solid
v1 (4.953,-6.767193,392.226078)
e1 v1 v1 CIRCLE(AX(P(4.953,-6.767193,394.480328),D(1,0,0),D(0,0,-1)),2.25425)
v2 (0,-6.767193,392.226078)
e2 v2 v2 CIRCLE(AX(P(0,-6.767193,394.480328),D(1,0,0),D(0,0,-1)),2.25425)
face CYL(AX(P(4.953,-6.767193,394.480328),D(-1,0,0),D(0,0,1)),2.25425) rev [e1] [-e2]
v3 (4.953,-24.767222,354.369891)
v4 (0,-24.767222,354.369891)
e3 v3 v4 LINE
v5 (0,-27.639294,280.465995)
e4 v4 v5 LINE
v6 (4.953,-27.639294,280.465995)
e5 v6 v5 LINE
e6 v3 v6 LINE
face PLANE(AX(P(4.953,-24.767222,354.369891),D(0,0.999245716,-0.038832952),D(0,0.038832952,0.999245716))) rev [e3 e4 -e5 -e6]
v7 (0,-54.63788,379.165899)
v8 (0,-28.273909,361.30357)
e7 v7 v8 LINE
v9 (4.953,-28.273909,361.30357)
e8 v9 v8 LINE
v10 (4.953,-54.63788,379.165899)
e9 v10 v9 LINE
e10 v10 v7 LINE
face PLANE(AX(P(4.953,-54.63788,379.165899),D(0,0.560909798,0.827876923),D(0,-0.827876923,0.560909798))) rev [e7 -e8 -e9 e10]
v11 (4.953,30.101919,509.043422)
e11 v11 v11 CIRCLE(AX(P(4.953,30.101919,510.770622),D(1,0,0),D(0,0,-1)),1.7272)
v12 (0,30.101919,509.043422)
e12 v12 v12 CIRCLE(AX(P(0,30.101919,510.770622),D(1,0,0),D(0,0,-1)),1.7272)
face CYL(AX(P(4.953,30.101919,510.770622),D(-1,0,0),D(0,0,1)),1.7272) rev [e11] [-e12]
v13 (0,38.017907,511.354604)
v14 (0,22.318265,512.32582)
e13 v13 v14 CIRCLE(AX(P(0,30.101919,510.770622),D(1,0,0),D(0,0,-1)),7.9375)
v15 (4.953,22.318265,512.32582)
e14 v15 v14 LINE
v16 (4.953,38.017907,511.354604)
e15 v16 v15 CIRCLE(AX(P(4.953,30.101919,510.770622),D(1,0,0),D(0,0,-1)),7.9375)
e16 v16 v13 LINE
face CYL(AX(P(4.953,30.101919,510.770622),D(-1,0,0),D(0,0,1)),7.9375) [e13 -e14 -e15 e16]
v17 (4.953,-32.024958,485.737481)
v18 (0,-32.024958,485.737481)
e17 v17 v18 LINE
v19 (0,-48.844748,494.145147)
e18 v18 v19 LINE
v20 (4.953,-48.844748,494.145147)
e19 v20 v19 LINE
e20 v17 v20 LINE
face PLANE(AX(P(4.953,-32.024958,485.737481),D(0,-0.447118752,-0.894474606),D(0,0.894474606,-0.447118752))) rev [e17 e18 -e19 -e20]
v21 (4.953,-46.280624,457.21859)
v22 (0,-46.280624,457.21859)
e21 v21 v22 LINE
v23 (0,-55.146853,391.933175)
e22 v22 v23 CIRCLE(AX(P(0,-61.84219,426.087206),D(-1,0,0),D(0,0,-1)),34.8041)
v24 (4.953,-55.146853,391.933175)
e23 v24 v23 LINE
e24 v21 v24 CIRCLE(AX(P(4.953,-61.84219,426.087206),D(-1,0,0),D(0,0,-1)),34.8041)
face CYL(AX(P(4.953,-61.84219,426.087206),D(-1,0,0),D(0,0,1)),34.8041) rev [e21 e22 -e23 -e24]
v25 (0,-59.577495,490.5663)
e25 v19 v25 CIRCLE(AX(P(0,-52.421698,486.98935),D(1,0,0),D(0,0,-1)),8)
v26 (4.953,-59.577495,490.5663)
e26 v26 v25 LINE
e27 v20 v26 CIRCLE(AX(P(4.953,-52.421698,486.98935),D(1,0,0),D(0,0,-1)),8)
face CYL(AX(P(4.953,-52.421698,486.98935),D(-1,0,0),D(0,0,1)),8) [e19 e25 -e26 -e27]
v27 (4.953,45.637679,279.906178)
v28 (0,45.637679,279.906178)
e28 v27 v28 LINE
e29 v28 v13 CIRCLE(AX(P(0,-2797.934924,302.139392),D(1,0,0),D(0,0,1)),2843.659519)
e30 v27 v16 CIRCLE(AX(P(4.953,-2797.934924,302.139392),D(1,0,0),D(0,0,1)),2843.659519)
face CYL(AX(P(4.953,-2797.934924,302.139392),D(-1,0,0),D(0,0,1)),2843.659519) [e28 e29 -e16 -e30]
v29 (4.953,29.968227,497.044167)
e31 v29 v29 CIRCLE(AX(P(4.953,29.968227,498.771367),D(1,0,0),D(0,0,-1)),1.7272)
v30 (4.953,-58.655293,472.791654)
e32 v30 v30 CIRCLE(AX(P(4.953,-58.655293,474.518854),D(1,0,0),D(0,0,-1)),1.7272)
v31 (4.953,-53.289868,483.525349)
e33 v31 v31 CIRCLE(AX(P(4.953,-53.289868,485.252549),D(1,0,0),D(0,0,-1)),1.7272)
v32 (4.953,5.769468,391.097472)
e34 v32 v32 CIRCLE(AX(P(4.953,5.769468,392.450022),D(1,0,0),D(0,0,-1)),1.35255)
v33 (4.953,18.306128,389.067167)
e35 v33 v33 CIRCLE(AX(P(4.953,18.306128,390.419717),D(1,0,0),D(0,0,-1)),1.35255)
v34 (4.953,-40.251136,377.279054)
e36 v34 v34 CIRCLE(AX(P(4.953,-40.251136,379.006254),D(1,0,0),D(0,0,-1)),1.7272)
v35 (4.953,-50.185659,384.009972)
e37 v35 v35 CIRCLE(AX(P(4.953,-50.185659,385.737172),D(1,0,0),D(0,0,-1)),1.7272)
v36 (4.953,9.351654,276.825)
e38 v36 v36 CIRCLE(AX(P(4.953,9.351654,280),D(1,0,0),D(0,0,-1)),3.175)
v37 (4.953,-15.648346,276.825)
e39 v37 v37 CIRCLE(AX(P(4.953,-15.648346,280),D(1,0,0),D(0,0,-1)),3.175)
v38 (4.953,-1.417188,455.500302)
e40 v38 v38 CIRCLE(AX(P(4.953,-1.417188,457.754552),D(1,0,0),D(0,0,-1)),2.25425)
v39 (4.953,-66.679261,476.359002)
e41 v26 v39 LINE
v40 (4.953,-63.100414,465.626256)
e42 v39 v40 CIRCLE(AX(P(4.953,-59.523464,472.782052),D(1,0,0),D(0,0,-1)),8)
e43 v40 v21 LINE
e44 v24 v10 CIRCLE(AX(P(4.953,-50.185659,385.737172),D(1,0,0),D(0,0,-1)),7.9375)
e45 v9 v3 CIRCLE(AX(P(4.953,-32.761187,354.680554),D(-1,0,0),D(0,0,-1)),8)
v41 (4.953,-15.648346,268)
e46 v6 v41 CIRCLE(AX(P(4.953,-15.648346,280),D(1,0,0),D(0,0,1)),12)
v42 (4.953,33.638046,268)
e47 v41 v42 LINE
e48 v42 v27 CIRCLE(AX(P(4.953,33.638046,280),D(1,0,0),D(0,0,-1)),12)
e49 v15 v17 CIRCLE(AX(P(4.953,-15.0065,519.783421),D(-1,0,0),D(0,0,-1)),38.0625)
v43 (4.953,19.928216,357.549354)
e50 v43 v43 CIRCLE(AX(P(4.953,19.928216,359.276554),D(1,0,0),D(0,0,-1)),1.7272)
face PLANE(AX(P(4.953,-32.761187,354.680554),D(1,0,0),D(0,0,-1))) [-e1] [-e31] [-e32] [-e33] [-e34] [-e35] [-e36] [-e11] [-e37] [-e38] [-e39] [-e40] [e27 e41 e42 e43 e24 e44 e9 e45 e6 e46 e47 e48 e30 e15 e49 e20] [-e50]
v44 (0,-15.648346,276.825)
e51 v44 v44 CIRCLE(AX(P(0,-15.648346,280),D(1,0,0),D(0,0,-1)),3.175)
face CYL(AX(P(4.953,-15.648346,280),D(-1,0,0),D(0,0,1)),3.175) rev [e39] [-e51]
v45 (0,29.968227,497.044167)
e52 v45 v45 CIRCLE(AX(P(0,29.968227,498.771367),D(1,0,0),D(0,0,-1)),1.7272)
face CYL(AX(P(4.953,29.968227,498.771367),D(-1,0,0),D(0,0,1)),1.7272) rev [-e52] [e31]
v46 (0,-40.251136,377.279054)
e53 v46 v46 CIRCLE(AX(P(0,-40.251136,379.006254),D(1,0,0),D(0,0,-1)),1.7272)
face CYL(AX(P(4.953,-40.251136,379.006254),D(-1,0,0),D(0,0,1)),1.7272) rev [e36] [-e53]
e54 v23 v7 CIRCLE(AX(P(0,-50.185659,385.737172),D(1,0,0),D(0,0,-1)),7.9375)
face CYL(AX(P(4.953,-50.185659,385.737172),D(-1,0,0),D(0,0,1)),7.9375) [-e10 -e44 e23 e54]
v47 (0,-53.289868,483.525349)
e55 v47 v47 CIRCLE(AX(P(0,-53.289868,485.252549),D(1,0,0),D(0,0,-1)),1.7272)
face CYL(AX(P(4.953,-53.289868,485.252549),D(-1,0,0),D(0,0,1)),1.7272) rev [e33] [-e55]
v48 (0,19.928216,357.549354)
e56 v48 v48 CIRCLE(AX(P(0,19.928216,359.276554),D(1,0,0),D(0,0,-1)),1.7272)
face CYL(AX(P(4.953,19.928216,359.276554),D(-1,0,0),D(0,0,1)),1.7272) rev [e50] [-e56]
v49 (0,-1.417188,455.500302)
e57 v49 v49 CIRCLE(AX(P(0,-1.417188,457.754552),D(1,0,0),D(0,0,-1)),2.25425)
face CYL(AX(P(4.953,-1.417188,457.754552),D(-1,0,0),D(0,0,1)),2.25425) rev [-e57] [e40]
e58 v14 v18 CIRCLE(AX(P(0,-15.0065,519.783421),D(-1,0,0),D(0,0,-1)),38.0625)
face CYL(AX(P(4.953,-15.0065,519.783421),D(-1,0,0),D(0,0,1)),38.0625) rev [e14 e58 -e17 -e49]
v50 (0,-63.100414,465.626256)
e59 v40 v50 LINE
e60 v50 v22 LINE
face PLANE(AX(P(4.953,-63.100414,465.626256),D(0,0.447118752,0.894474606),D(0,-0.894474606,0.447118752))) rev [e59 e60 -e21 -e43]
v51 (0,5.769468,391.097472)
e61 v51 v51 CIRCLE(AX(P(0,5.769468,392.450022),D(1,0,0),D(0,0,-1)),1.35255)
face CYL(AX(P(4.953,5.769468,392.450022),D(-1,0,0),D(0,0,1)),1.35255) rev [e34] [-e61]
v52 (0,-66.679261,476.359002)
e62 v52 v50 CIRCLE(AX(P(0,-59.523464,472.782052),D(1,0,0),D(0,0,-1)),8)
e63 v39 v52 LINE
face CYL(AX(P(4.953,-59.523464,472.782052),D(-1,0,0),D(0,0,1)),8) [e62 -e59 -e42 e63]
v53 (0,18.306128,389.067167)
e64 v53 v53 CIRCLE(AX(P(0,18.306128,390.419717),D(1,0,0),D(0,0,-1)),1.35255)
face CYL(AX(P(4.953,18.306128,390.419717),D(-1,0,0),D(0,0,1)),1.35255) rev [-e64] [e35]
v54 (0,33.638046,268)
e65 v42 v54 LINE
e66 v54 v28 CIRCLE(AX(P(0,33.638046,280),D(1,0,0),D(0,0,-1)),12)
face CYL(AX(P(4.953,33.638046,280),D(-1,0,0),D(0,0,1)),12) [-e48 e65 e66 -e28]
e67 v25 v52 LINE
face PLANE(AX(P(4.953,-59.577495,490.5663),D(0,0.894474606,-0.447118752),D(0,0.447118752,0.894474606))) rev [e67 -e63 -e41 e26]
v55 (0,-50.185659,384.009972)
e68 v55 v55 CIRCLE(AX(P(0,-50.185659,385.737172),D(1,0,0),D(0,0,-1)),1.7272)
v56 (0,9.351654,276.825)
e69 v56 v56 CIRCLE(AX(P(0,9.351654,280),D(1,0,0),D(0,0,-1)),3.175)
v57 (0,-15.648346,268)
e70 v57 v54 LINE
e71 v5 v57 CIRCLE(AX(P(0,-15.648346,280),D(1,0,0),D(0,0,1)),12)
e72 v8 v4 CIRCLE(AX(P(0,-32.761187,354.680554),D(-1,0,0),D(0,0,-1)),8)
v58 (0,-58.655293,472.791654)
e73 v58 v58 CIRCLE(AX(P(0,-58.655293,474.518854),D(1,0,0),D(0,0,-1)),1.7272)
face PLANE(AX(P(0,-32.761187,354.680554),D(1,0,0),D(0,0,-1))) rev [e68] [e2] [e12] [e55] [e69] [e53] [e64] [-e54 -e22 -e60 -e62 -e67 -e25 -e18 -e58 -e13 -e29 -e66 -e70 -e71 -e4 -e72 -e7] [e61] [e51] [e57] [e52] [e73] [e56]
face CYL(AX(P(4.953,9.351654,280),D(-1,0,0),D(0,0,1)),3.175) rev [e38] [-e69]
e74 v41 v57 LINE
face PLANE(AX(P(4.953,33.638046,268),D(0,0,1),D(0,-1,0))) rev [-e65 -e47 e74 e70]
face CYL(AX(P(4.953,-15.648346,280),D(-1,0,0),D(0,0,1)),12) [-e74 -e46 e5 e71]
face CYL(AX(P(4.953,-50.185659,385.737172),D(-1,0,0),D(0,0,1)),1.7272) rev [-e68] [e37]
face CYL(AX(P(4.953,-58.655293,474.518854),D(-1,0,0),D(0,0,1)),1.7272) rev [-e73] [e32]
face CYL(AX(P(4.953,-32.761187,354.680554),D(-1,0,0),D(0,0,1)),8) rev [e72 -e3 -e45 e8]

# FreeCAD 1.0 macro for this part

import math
import FreeCAD as App
import Part
import Sketcher

V = App.Vector
Q = App.Units.Quantity

doc = App.newDocument("Part")
body = doc.addObject("PartDesign::Body", "Body")

sketch1 = doc.addObject("Sketcher::SketchObject", "Sketch")
body.addObject(sketch1)
sketch1.AttachmentSupport = (doc.YZ_Plane, [""])
sketch1.MapMode = "FlatFace"
sketch1.addGeometry(Part.LineSegment(V(-15.6, 268, 0), V(33.6, 268, 0)), False)
sketch1.addGeometry(Part.ArcOfCircle(Part.Circle(V(33.6, 280, 0), V(0, 0, 1), 12), math.radians(-90), math.radians(0)), False)
sketch1.addGeometry(Part.ArcOfCircle(Part.Circle(V(-2797.9, 302.1, 0), V(0, 0, 1), 2843.7), math.radians(-0.45), math.radians(4.22)), False)
sketch1.addGeometry(Part.ArcOfCircle(Part.Circle(V(30.1, 510.8, 0), V(0, 0, 1), 7.9), math.radians(4), math.radians(169)), False)
sketch1.addGeometry(Part.ArcOfCircle(Part.Circle(V(-15, 519.8, 0), V(0, 0, 1), 38.1), math.radians(-117), math.radians(-11)), False)
sketch1.addGeometry(Part.LineSegment(V(-32, 485.7, 0), V(-48.8, 494.1, 0)), False)
sketch1.addGeometry(Part.ArcOfCircle(Part.Circle(V(-52.4, 487, 0), V(0, 0, 1), 8), math.radians(63), math.radians(153)), False)
sketch1.addGeometry(Part.LineSegment(V(-59.6, 490.6, 0), V(-66.7, 476.4, 0)), False)
sketch1.addGeometry(Part.ArcOfCircle(Part.Circle(V(-59.5, 472.8, 0), V(0, 0, 1), 8), math.radians(153), math.radians(243)), False)
sketch1.addGeometry(Part.LineSegment(V(-63.1, 465.6, 0), V(-46.3, 457.2, 0)), False)
sketch1.addGeometry(Part.ArcOfCircle(Part.Circle(V(-61.8, 426.1, 0), V(0, 0, 1), 34.8), math.radians(-79), math.radians(63)), False)
sketch1.addGeometry(Part.ArcOfCircle(Part.Circle(V(-50.2, 385.7, 0), V(0, 0, 1), 7.9), math.radians(129), math.radians(236)), False)
sketch1.addGeometry(Part.LineSegment(V(-54.6, 379.2, 0), V(-28.3, 361.3, 0)), False)
sketch1.addGeometry(Part.ArcOfCircle(Part.Circle(V(-32.8, 354.7, 0), V(0, 0, 1), 8), math.radians(-2), math.radians(56)), False)
sketch1.addGeometry(Part.LineSegment(V(-24.8, 354.4, 0), V(-27.6, 280.5, 0)), False)
sketch1.addGeometry(Part.ArcOfCircle(Part.Circle(V(-15.6, 280, 0), V(0, 0, 1), 12), math.radians(178), math.radians(270)), False)
sketch1.addGeometry(Part.Circle(V(-50.2, 385.7, 0), V(0, 0, 1), 1.7), False)
sketch1.addGeometry(Part.Circle(V(-40.3, 379, 0), V(0, 0, 1), 1.7), False)
sketch1.addGeometry(Part.Circle(V(-15.6, 280, 0), V(0, 0, 1), 3.2), False)
sketch1.addGeometry(Part.Circle(V(-58.7, 474.5, 0), V(0, 0, 1), 1.7), False)
sketch1.addGeometry(Part.Circle(V(-53.3, 485.3, 0), V(0, 0, 1), 1.7), False)
sketch1.addGeometry(Part.Circle(V(-6.8, 394.5, 0), V(0, 0, 1), 2.3), False)
sketch1.addGeometry(Part.Circle(V(5.8, 392.5, 0), V(0, 0, 1), 1.4), False)
sketch1.addGeometry(Part.Circle(V(9.4, 280, 0), V(0, 0, 1), 3.2), False)
sketch1.addGeometry(Part.Circle(V(19.9, 359.3, 0), V(0, 0, 1), 1.7), False)
sketch1.addGeometry(Part.Circle(V(18.3, 390.4, 0), V(0, 0, 1), 1.4), False)
sketch1.addGeometry(Part.Circle(V(-1.4, 457.8, 0), V(0, 0, 1), 2.3), False)
sketch1.addGeometry(Part.Circle(V(30, 498.8, 0), V(0, 0, 1), 1.7), False)
sketch1.addGeometry(Part.Circle(V(30.1, 510.8, 0), V(0, 0, 1), 1.7), False)
sketch1.addConstraint(Sketcher.Constraint("Tangent", 0, 2, 1, 1))
sketch1.addConstraint(Sketcher.Constraint("Tangent", 1, 2, 2, 1))
sketch1.addConstraint(Sketcher.Constraint("Tangent", 2, 2, 3, 1))
sketch1.addConstraint(Sketcher.Constraint("Tangent", 3, 2, 4, 2))
sketch1.addConstraint(Sketcher.Constraint("Tangent", 4, 1, 5, 1))
sketch1.addConstraint(Sketcher.Constraint("Tangent", 5, 2, 6, 1))
sketch1.addConstraint(Sketcher.Constraint("Tangent", 6, 2, 7, 1))
sketch1.addConstraint(Sketcher.Constraint("Tangent", 7, 2, 8, 1))
sketch1.addConstraint(Sketcher.Constraint("Tangent", 8, 2, 9, 1))
sketch1.addConstraint(Sketcher.Constraint("Tangent", 9, 2, 10, 2))
sketch1.addConstraint(Sketcher.Constraint("Coincident", 10, 1, 11, 1))
sketch1.addConstraint(Sketcher.Constraint("Tangent", 11, 2, 12, 1))
sketch1.addConstraint(Sketcher.Constraint("Tangent", 12, 2, 13, 2))
sketch1.addConstraint(Sketcher.Constraint("Tangent", 13, 1, 14, 1))
sketch1.addConstraint(Sketcher.Constraint("Tangent", 14, 2, 15, 1))
sketch1.addConstraint(Sketcher.Constraint("Tangent", 15, 2, 0, 1))
sketch1.addConstraint(Sketcher.Constraint("Horizontal", 0))
sketch1.addConstraint(Sketcher.Constraint("Coincident", 16, 3, 11, 3))
sketch1.addConstraint(Sketcher.Constraint("Coincident", 18, 3, 15, 3))
sketch1.addConstraint(Sketcher.Constraint("Coincident", 28, 3, 3, 3))
sketch1.addConstraint(Sketcher.Constraint("Equal", 6, 8))
sketch1.addConstraint(Sketcher.Constraint("Equal", 3, 11))
sketch1.addConstraint(Sketcher.Constraint("Equal", 8, 13))
sketch1.addConstraint(Sketcher.Constraint("Equal", 1, 15))
sketch1.addConstraint(Sketcher.Constraint("Equal", 16, 17))
sketch1.addConstraint(Sketcher.Constraint("Equal", 17, 19))
sketch1.addConstraint(Sketcher.Constraint("Equal", 19, 20))
sketch1.addConstraint(Sketcher.Constraint("Equal", 18, 23))
sketch1.addConstraint(Sketcher.Constraint("Equal", 20, 24))
sketch1.addConstraint(Sketcher.Constraint("Equal", 22, 25))
sketch1.addConstraint(Sketcher.Constraint("Equal", 21, 26))
sketch1.addConstraint(Sketcher.Constraint("Equal", 24, 27))
sketch1.addConstraint(Sketcher.Constraint("Equal", 27, 28))
sketch1.addConstraint(Sketcher.Constraint("Perpendicular", 5, 7))
sketch1.addConstraint(Sketcher.Constraint("Perpendicular", 7, 9))
sketch1.addConstraint(Sketcher.Constraint("Horizontal", 18, 3, 23, 3))
sketch1.addConstraint(Sketcher.Constraint("Equal", 5, 9))
sketch1.addConstraint(Sketcher.Constraint("Diameter", 18, Q("0.25 in")))
sketch1.addConstraint(Sketcher.Constraint("Diameter", 16, Q("0.136 in")))
sketch1.addConstraint(Sketcher.Constraint("Radius", 3, Q("0.3125 in")))
sketch1.addConstraint(Sketcher.Constraint("Diameter", 21, Q("0.1775 in")))
sketch1.addConstraint(Sketcher.Constraint("Diameter", 22, Q("0.1065 in")))
sketch1.addConstraint(Sketcher.Constraint("Radius", 1, 12.0))
sketch1.addConstraint(Sketcher.Constraint("Radius", 4, 38.0625))
sketch1.addConstraint(Sketcher.Constraint("Radius", 6, 8.0))
sketch1.addConstraint(Sketcher.Constraint("Radius", 10, 34.8041))
sketch1.addConstraint(Sketcher.Constraint("Radius", 2, 2843.65952))
sketch1.addConstraint(Sketcher.Constraint("Distance", 5, 18.8041))
sketch1.addConstraint(Sketcher.Constraint("Distance", 7, 15.8834))
sketch1.addConstraint(Sketcher.Constraint("DistanceX", 0, 1, 0, 2, 49.286391))
sketch1.addConstraint(Sketcher.Constraint("DistanceY", -1, 1, 1, 3, 280.0))
sketch1.addConstraint(Sketcher.Constraint("DistanceX", 4, 3, -1, 1, 15.0065))
sketch1.addConstraint(Sketcher.Constraint("DistanceY", -1, 1, 6, 2, 490.5663))
sketch1.addConstraint(Sketcher.Constraint("DistanceY", -1, 1, 11, 2, 379.165899))
sketch1.addConstraint(Sketcher.Constraint("DistanceY", 3, 3, 4, 3, 9.012799))
sketch1.addConstraint(Sketcher.Constraint("DistanceY", 13, 3, 8, 3, 118.101498))
sketch1.addConstraint(Sketcher.Constraint("DistanceY", 13, 3, 17, 3, 24.3257))
sketch1.addConstraint(Sketcher.Constraint("DistanceY", 8, 3, 19, 3, 1.736801))
sketch1.addConstraint(Sketcher.Constraint("DistanceY", 20, 3, 6, 3, 1.736801))
sketch1.addConstraint(Sketcher.Constraint("DistanceX", 18, 3, 23, 3, 25.0))
sketch1.addConstraint(Sketcher.Constraint("DistanceY", 13, 3, 24, 3, 4.596))
sketch1.addConstraint(Sketcher.Constraint("DistanceY", 26, 3, 6, 3, 29.234798))
sketch1.addConstraint(Sketcher.Constraint("DistanceY", 26, 3, 19, 3, 16.764301))
sketch1.addConstraint(Sketcher.Constraint("DistanceX", 6, 2, 19, 3, 0.922201))
sketch1.addConstraint(Sketcher.Constraint("Distance", 12, 31.845279))
sketch1.addConstraint(Sketcher.Constraint("Distance", 14, 73.959682))
sketch1.addConstraint(Sketcher.Constraint("DistanceX", 11, 3, -1, 1, 50.185659))
sketch1.addConstraint(Sketcher.Constraint("DistanceX", 20, 3, -1, 1, 53.289868))
sketch1.addConstraint(Sketcher.Constraint("DistanceY", -1, 1, 21, 3, 394.480328))
sketch1.addConstraint(Sketcher.Constraint("DistanceX", -1, 1, 25, 3, 18.306128))
sketch1.addConstraint(Sketcher.Constraint("DistanceX", 17, 3, 13, 3, 7.489948))
sketch1.addConstraint(Sketcher.Constraint("DistanceX", 21, 3, 22, 3, 12.536661))
sketch1.addConstraint(Sketcher.Constraint("DistanceY", 17, 3, 22, 3, 13.443768))
sketch1.addConstraint(Sketcher.Constraint("DistanceX", 22, 3, 24, 3, 14.158749))
sketch1.addConstraint(Sketcher.Constraint("DistanceX", 22, 3, 25, 3, 12.536661))
sketch1.addConstraint(Sketcher.Constraint("DistanceY", 25, 3, 21, 3, 4.060611))
sketch1.addConstraint(Sketcher.Constraint("DistanceX", 20, 3, 26, 3, 51.872681))
sketch1.addConstraint(Sketcher.Constraint("DistanceX", 27, 3, 3, 3, 0.133692))
sketch1.addConstraint(Sketcher.Constraint("DistanceY", 20, 3, 27, 3, 13.518818))
pad1 = doc.addObject("PartDesign::Pad", "Pad")
body.addObject(pad1)
pad1.Profile = sketch1
pad1.Length = Q("0.195 in")

doc.recompute()
